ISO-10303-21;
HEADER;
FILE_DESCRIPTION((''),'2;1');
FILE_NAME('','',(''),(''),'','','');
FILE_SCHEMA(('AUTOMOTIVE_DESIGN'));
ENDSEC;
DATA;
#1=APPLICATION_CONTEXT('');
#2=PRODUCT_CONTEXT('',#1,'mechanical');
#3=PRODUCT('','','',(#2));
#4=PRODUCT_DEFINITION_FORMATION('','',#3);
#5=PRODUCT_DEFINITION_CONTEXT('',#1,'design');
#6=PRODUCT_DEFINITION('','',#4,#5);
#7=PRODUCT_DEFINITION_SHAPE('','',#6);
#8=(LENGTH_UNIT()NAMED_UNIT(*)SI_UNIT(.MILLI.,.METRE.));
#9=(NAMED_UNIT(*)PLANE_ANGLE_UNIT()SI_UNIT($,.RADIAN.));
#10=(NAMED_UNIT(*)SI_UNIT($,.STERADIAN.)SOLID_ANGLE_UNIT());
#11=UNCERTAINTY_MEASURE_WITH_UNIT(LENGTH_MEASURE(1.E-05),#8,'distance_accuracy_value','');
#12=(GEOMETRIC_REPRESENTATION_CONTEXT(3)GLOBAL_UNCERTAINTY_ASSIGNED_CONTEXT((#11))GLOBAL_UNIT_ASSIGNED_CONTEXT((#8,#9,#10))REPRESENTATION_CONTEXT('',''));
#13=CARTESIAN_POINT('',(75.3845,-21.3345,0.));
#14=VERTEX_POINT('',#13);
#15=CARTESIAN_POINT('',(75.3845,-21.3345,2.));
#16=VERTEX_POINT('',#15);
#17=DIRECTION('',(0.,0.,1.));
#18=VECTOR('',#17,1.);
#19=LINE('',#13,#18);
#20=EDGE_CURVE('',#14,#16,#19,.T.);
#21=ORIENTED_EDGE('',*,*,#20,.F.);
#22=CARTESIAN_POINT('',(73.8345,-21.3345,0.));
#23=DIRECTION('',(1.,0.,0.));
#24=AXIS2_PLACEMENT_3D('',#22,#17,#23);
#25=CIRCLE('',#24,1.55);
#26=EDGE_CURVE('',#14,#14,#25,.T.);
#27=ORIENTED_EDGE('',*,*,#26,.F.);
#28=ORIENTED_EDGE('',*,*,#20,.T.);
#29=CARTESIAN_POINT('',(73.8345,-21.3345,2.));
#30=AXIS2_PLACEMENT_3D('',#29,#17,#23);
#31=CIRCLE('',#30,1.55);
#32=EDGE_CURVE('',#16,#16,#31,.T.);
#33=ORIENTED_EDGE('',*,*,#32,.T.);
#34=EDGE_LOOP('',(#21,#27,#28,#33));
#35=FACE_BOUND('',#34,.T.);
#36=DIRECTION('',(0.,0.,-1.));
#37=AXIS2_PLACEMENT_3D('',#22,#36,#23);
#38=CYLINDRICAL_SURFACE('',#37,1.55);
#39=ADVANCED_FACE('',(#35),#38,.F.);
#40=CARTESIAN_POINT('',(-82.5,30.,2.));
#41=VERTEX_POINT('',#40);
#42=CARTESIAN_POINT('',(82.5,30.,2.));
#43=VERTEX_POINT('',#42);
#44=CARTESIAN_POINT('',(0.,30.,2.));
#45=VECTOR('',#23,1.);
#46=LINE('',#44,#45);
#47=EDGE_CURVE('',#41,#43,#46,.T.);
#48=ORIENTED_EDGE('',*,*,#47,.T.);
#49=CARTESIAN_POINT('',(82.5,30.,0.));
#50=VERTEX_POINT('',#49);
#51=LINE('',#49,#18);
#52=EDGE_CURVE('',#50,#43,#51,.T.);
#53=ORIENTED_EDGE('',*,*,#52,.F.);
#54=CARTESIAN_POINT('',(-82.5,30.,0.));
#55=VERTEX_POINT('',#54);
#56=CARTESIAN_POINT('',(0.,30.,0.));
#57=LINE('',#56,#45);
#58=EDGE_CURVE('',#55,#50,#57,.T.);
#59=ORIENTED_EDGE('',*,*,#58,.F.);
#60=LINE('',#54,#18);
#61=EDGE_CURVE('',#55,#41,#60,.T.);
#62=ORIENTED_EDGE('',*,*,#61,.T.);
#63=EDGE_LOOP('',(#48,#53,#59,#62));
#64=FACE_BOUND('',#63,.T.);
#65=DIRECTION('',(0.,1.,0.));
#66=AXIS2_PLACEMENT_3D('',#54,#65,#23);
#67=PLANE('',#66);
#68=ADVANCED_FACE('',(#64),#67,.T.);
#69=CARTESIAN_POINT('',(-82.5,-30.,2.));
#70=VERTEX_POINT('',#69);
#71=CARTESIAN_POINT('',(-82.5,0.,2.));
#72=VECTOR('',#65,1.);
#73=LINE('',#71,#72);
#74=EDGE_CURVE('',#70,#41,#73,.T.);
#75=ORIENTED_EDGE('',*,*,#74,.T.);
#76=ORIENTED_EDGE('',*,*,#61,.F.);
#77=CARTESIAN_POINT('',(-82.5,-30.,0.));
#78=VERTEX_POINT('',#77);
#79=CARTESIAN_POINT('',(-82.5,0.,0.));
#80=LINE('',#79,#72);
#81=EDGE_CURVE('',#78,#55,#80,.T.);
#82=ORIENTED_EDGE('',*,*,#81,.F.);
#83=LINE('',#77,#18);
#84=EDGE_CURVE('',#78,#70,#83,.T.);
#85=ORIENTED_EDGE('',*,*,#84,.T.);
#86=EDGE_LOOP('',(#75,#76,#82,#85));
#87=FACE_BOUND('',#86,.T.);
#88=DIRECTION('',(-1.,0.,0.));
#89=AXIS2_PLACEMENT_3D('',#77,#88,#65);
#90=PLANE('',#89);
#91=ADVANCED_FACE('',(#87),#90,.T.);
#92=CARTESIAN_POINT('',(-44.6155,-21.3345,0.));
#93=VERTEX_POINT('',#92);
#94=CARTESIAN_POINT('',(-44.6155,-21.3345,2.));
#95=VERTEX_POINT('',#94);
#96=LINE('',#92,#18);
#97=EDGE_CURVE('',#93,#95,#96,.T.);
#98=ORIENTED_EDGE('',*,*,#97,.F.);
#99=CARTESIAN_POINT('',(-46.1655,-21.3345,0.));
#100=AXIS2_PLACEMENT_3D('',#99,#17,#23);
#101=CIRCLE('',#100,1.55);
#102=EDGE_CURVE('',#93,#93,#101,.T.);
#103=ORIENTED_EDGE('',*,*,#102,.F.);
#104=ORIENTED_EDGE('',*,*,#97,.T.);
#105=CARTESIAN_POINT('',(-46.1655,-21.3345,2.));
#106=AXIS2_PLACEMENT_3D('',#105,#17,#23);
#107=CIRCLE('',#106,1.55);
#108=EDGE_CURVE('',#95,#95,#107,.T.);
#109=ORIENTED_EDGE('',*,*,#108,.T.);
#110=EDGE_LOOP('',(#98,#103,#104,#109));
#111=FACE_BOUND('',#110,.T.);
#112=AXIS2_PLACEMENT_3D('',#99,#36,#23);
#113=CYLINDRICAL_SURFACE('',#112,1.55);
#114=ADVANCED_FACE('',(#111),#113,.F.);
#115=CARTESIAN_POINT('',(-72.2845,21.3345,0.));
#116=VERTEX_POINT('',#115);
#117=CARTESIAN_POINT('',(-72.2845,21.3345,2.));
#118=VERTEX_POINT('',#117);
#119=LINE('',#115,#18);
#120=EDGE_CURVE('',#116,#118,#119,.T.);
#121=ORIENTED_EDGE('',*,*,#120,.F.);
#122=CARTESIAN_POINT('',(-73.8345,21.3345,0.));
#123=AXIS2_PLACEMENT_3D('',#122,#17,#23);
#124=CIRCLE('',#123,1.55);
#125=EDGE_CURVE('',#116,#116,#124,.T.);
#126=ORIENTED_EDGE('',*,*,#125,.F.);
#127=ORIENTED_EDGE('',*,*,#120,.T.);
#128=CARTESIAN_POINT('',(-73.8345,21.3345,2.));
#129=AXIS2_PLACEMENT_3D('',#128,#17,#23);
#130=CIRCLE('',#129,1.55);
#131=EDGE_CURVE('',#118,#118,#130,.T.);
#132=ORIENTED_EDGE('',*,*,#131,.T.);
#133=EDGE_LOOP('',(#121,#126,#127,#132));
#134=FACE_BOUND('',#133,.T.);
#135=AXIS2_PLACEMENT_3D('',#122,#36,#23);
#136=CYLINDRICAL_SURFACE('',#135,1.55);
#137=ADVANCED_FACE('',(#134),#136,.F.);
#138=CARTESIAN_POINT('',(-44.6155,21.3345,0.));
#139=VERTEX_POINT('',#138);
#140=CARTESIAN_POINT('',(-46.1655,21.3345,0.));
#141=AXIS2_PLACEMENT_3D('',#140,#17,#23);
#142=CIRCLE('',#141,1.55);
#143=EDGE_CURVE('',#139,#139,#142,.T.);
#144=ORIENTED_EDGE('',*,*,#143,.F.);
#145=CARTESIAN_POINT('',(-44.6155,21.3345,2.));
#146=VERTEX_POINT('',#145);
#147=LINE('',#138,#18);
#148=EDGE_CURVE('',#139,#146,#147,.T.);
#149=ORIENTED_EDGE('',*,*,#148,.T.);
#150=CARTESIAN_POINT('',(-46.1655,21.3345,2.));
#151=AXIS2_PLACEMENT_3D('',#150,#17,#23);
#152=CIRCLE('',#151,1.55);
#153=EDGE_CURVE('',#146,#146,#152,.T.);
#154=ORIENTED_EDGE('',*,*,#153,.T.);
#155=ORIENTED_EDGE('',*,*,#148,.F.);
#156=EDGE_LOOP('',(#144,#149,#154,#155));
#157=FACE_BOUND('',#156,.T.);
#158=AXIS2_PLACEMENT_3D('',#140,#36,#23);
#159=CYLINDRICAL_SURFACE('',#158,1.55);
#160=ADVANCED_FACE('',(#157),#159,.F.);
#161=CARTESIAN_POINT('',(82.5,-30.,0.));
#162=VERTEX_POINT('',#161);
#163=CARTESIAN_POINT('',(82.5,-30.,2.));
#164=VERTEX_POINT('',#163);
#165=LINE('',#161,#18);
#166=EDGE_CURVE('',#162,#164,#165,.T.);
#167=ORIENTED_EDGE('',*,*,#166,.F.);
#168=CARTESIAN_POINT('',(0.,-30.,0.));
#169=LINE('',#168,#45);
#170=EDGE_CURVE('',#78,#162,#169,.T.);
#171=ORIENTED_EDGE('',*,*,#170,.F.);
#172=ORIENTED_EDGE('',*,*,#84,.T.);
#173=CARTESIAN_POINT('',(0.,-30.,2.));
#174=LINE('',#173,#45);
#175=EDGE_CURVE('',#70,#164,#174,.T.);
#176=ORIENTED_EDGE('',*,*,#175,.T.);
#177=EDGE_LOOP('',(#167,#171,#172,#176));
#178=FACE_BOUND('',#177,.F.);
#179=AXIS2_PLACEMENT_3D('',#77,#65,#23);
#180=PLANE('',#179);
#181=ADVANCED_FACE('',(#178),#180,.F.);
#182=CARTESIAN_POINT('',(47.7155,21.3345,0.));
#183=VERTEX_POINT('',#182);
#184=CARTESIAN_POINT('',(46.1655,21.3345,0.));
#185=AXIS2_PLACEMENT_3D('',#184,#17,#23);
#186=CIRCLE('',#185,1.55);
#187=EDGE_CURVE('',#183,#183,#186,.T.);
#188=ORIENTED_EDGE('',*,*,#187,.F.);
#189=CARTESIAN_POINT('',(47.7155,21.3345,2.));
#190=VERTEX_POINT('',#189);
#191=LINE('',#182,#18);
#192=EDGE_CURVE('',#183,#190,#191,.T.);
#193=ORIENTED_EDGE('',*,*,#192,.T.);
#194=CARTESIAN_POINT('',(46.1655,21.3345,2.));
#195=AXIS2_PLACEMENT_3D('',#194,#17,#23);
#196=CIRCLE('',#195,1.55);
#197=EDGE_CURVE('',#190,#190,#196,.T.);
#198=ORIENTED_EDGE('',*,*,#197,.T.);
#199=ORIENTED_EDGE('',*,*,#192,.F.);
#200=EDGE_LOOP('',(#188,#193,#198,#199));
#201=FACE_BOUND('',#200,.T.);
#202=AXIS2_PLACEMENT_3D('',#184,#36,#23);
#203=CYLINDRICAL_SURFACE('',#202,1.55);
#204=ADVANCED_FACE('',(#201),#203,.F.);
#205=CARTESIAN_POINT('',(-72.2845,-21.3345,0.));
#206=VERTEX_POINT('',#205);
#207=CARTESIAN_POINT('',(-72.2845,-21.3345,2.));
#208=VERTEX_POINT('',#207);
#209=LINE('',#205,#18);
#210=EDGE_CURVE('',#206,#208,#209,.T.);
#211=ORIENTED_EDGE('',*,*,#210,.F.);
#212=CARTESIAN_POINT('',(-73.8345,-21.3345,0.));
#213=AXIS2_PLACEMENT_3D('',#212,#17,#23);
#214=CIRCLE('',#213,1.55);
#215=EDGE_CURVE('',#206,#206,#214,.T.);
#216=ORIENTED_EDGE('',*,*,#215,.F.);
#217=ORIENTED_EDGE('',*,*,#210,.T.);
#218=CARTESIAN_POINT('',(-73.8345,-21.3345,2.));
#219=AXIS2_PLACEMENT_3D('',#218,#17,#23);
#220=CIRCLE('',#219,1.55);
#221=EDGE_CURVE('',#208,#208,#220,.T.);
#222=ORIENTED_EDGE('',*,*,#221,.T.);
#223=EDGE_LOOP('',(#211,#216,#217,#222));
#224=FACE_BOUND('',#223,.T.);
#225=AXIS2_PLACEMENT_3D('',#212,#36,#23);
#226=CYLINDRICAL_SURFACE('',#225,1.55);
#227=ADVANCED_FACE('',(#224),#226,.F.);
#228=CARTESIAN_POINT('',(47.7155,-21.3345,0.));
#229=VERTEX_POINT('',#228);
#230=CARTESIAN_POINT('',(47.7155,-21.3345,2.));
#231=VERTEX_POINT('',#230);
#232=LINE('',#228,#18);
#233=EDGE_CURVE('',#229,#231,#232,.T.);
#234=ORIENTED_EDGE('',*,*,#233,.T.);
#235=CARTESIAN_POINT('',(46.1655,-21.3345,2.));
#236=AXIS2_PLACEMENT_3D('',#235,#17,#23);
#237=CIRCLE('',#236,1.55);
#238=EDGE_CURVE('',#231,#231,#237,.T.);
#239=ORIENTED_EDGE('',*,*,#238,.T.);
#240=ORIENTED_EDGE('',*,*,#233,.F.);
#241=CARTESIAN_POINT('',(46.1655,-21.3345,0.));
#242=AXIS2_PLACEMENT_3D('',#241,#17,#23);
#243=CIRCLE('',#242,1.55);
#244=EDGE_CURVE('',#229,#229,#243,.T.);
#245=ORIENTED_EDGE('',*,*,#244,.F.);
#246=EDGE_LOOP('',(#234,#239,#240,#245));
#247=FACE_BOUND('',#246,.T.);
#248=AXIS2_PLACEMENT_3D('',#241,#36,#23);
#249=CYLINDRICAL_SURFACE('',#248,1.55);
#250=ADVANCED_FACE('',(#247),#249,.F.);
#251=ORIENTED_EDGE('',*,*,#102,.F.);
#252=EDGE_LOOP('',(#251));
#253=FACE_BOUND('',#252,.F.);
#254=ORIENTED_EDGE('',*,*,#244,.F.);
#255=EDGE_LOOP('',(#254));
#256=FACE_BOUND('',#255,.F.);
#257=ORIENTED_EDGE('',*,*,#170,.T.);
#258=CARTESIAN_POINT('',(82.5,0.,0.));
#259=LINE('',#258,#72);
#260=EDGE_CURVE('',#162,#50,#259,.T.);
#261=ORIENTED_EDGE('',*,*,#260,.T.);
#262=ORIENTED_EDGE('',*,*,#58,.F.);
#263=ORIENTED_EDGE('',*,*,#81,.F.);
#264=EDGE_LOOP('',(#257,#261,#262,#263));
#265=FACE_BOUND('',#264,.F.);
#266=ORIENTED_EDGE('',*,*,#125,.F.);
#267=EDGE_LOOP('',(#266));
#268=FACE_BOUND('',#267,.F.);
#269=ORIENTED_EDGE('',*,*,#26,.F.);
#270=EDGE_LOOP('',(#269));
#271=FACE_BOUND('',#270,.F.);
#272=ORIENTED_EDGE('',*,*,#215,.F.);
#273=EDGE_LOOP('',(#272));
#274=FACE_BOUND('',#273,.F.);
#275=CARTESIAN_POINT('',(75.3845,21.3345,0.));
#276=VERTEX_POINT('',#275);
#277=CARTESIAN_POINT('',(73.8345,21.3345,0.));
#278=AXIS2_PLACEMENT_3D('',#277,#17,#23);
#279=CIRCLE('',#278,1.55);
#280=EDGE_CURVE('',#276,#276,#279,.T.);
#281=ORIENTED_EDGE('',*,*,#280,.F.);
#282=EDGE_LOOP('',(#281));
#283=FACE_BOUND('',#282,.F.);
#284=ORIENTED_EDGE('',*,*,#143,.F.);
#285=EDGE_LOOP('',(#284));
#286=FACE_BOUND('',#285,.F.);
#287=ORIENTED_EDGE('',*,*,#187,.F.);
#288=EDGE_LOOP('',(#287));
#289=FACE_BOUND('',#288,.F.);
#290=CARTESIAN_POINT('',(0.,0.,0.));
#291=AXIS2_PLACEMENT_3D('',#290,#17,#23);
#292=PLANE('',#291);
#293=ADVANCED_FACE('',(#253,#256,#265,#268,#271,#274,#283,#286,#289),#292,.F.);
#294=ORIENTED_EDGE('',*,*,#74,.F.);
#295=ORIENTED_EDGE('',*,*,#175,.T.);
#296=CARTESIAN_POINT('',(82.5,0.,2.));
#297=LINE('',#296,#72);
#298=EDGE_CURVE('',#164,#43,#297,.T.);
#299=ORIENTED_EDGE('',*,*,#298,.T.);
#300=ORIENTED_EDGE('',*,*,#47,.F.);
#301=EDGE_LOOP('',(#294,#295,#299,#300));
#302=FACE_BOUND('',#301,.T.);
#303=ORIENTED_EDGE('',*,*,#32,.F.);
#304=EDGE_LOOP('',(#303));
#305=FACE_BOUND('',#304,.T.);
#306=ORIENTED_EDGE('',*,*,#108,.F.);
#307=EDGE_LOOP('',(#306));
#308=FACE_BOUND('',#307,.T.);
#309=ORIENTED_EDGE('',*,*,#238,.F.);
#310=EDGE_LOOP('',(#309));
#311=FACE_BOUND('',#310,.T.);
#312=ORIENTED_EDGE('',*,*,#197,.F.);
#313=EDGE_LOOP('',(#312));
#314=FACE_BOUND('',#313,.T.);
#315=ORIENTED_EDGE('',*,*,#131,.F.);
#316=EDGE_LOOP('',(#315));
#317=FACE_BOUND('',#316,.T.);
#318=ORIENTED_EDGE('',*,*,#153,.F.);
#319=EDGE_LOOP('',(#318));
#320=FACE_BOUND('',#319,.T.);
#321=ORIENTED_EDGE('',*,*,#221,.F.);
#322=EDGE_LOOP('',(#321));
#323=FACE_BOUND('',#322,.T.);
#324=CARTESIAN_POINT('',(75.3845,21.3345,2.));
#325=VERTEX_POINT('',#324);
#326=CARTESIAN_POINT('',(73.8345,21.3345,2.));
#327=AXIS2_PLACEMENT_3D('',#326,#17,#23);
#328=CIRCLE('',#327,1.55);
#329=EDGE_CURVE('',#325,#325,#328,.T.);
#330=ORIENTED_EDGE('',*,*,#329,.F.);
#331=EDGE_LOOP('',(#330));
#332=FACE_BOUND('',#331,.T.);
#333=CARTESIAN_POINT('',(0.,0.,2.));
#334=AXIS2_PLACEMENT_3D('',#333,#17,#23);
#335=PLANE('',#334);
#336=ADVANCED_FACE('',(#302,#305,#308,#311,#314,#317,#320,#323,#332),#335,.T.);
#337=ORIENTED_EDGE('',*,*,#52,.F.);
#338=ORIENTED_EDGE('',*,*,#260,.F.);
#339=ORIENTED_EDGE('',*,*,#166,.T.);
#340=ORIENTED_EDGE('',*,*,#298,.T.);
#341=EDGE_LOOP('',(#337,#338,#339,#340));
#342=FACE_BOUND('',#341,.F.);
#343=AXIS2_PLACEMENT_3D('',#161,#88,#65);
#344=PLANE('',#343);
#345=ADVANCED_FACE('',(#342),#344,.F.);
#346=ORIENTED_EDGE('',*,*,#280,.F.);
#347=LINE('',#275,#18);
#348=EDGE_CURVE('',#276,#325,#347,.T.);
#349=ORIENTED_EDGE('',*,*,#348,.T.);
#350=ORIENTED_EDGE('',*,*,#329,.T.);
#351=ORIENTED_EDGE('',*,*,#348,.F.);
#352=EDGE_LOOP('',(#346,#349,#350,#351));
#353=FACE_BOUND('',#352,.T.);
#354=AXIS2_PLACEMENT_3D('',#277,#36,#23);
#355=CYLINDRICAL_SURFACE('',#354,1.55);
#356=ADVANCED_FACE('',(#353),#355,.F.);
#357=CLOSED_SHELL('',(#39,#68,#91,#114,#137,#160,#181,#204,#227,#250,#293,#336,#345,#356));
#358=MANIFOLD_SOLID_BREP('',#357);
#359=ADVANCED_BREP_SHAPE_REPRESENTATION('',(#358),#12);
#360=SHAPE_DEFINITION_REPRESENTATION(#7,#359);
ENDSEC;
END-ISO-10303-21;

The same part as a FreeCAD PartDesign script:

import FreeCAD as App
import Part
import Sketcher

V = App.Vector

doc = App.newDocument("Part")
body = doc.addObject("PartDesign::Body", "Body")

# Sketch on XY plane
sketch1 = body.newObject("Sketcher::SketchObject", "Sketch")
sketch1.AttachmentSupport = (doc.getObject("XY_Plane"), [""])
sketch1.MapMode = "FlatFace"
sketch1.addGeometry(Part.LineSegment(V(-82.5, 30, 0), V(-82.5, -30, 0)), False)
sketch1.addGeometry(Part.LineSegment(V(-82.5, -30, 0), V(82.5, -30, 0)), False)
sketch1.addGeometry(Part.LineSegment(V(82.5, -30, 0), V(82.5, 30, 0)), False)
sketch1.addGeometry(Part.LineSegment(V(82.5, 30, 0), V(-82.5, 30, 0)), False)
sketch1.addGeometry(Part.Circle(V(-73.8, -21.3, 0), V(0, 0, 1), 1.6), False)
sketch1.addGeometry(Part.Circle(V(-46.2, -21.3, 0), V(0, 0, 1), 1.6), False)
sketch1.addGeometry(Part.Circle(V(46.2, -21.3, 0), V(0, 0, 1), 1.6), False)
sketch1.addGeometry(Part.Circle(V(73.8, -21.3, 0), V(0, 0, 1), 1.6), False)
sketch1.addGeometry(Part.Circle(V(-73.8, 21.3, 0), V(0, 0, 1), 1.6), False)
sketch1.addGeometry(Part.Circle(V(-46.2, 21.3, 0), V(0, 0, 1), 1.6), False)
sketch1.addGeometry(Part.Circle(V(46.2, 21.3, 0), V(0, 0, 1), 1.6), False)
sketch1.addGeometry(Part.Circle(V(73.8, 21.3, 0), V(0, 0, 1), 1.6), False)
sketch1.addConstraint(Sketcher.Constraint("Coincident", 0, 2, 1, 1))
sketch1.addConstraint(Sketcher.Constraint("Coincident", 1, 2, 2, 1))
sketch1.addConstraint(Sketcher.Constraint("Coincident", 2, 2, 3, 1))
sketch1.addConstraint(Sketcher.Constraint("Coincident", 3, 2, 0, 1))
sketch1.addConstraint(Sketcher.Constraint("Vertical", 0))
sketch1.addConstraint(Sketcher.Constraint("Horizontal", 1))
sketch1.addConstraint(Sketcher.Constraint("Vertical", 2))
sketch1.addConstraint(Sketcher.Constraint("Horizontal", 3))
sketch1.addConstraint(Sketcher.Constraint("Equal", 4, 5))
sketch1.addConstraint(Sketcher.Constraint("Equal", 5, 6))
sketch1.addConstraint(Sketcher.Constraint("Equal", 6, 7))
sketch1.addConstraint(Sketcher.Constraint("Equal", 7, 8))
sketch1.addConstraint(Sketcher.Constraint("Equal", 8, 9))
sketch1.addConstraint(Sketcher.Constraint("Equal", 9, 10))
sketch1.addConstraint(Sketcher.Constraint("Equal", 10, 11))
sketch1.addConstraint(Sketcher.Constraint("Symmetric", 7, 3, 8, 3, -1, 1))
sketch1.addConstraint(Sketcher.Constraint("Symmetric", 6, 3, 9, 3, -1, 1))
sketch1.addConstraint(Sketcher.Constraint("Symmetric", 5, 3, 10, 3, -1, 1))
sketch1.addConstraint(Sketcher.Constraint("Symmetric", 4, 3, 11, 3, -1, 1))
sketch1.addConstraint(Sketcher.Constraint("Symmetric", 0, 2, 2, 2, -1, 1))
sketch1.addConstraint(Sketcher.Constraint("Symmetric", 5, 3, 6, 3, -2))
sketch1.addConstraint(Sketcher.Constraint("Symmetric", 4, 3, 7, 3, -2))
sketch1.addConstraint(Sketcher.Constraint("Horizontal", 4, 3, 5, 3))
sketch1.addConstraint(Sketcher.Constraint("Diameter", 4, 3.1))
sketch1.addConstraint(Sketcher.Constraint("DistanceX", 1, 1, 1, 2, 165.0))
sketch1.addConstraint(Sketcher.Constraint("DistanceY", 0, 2, 0, 1, 60.0))
sketch1.addConstraint(Sketcher.Constraint("DistanceX", 4, 3, 6, 3, 120.0))
sketch1.addConstraint(Sketcher.Constraint("DistanceX", 4, 3, 5, 3, 27.669))
sketch1.addConstraint(Sketcher.Constraint("DistanceY", 4, 3, 8, 3, 42.669))
pad1 = body.newObject("PartDesign::Pad", "Pad")
pad1.Profile = sketch1
pad1.Length = 2

doc.recompute()
